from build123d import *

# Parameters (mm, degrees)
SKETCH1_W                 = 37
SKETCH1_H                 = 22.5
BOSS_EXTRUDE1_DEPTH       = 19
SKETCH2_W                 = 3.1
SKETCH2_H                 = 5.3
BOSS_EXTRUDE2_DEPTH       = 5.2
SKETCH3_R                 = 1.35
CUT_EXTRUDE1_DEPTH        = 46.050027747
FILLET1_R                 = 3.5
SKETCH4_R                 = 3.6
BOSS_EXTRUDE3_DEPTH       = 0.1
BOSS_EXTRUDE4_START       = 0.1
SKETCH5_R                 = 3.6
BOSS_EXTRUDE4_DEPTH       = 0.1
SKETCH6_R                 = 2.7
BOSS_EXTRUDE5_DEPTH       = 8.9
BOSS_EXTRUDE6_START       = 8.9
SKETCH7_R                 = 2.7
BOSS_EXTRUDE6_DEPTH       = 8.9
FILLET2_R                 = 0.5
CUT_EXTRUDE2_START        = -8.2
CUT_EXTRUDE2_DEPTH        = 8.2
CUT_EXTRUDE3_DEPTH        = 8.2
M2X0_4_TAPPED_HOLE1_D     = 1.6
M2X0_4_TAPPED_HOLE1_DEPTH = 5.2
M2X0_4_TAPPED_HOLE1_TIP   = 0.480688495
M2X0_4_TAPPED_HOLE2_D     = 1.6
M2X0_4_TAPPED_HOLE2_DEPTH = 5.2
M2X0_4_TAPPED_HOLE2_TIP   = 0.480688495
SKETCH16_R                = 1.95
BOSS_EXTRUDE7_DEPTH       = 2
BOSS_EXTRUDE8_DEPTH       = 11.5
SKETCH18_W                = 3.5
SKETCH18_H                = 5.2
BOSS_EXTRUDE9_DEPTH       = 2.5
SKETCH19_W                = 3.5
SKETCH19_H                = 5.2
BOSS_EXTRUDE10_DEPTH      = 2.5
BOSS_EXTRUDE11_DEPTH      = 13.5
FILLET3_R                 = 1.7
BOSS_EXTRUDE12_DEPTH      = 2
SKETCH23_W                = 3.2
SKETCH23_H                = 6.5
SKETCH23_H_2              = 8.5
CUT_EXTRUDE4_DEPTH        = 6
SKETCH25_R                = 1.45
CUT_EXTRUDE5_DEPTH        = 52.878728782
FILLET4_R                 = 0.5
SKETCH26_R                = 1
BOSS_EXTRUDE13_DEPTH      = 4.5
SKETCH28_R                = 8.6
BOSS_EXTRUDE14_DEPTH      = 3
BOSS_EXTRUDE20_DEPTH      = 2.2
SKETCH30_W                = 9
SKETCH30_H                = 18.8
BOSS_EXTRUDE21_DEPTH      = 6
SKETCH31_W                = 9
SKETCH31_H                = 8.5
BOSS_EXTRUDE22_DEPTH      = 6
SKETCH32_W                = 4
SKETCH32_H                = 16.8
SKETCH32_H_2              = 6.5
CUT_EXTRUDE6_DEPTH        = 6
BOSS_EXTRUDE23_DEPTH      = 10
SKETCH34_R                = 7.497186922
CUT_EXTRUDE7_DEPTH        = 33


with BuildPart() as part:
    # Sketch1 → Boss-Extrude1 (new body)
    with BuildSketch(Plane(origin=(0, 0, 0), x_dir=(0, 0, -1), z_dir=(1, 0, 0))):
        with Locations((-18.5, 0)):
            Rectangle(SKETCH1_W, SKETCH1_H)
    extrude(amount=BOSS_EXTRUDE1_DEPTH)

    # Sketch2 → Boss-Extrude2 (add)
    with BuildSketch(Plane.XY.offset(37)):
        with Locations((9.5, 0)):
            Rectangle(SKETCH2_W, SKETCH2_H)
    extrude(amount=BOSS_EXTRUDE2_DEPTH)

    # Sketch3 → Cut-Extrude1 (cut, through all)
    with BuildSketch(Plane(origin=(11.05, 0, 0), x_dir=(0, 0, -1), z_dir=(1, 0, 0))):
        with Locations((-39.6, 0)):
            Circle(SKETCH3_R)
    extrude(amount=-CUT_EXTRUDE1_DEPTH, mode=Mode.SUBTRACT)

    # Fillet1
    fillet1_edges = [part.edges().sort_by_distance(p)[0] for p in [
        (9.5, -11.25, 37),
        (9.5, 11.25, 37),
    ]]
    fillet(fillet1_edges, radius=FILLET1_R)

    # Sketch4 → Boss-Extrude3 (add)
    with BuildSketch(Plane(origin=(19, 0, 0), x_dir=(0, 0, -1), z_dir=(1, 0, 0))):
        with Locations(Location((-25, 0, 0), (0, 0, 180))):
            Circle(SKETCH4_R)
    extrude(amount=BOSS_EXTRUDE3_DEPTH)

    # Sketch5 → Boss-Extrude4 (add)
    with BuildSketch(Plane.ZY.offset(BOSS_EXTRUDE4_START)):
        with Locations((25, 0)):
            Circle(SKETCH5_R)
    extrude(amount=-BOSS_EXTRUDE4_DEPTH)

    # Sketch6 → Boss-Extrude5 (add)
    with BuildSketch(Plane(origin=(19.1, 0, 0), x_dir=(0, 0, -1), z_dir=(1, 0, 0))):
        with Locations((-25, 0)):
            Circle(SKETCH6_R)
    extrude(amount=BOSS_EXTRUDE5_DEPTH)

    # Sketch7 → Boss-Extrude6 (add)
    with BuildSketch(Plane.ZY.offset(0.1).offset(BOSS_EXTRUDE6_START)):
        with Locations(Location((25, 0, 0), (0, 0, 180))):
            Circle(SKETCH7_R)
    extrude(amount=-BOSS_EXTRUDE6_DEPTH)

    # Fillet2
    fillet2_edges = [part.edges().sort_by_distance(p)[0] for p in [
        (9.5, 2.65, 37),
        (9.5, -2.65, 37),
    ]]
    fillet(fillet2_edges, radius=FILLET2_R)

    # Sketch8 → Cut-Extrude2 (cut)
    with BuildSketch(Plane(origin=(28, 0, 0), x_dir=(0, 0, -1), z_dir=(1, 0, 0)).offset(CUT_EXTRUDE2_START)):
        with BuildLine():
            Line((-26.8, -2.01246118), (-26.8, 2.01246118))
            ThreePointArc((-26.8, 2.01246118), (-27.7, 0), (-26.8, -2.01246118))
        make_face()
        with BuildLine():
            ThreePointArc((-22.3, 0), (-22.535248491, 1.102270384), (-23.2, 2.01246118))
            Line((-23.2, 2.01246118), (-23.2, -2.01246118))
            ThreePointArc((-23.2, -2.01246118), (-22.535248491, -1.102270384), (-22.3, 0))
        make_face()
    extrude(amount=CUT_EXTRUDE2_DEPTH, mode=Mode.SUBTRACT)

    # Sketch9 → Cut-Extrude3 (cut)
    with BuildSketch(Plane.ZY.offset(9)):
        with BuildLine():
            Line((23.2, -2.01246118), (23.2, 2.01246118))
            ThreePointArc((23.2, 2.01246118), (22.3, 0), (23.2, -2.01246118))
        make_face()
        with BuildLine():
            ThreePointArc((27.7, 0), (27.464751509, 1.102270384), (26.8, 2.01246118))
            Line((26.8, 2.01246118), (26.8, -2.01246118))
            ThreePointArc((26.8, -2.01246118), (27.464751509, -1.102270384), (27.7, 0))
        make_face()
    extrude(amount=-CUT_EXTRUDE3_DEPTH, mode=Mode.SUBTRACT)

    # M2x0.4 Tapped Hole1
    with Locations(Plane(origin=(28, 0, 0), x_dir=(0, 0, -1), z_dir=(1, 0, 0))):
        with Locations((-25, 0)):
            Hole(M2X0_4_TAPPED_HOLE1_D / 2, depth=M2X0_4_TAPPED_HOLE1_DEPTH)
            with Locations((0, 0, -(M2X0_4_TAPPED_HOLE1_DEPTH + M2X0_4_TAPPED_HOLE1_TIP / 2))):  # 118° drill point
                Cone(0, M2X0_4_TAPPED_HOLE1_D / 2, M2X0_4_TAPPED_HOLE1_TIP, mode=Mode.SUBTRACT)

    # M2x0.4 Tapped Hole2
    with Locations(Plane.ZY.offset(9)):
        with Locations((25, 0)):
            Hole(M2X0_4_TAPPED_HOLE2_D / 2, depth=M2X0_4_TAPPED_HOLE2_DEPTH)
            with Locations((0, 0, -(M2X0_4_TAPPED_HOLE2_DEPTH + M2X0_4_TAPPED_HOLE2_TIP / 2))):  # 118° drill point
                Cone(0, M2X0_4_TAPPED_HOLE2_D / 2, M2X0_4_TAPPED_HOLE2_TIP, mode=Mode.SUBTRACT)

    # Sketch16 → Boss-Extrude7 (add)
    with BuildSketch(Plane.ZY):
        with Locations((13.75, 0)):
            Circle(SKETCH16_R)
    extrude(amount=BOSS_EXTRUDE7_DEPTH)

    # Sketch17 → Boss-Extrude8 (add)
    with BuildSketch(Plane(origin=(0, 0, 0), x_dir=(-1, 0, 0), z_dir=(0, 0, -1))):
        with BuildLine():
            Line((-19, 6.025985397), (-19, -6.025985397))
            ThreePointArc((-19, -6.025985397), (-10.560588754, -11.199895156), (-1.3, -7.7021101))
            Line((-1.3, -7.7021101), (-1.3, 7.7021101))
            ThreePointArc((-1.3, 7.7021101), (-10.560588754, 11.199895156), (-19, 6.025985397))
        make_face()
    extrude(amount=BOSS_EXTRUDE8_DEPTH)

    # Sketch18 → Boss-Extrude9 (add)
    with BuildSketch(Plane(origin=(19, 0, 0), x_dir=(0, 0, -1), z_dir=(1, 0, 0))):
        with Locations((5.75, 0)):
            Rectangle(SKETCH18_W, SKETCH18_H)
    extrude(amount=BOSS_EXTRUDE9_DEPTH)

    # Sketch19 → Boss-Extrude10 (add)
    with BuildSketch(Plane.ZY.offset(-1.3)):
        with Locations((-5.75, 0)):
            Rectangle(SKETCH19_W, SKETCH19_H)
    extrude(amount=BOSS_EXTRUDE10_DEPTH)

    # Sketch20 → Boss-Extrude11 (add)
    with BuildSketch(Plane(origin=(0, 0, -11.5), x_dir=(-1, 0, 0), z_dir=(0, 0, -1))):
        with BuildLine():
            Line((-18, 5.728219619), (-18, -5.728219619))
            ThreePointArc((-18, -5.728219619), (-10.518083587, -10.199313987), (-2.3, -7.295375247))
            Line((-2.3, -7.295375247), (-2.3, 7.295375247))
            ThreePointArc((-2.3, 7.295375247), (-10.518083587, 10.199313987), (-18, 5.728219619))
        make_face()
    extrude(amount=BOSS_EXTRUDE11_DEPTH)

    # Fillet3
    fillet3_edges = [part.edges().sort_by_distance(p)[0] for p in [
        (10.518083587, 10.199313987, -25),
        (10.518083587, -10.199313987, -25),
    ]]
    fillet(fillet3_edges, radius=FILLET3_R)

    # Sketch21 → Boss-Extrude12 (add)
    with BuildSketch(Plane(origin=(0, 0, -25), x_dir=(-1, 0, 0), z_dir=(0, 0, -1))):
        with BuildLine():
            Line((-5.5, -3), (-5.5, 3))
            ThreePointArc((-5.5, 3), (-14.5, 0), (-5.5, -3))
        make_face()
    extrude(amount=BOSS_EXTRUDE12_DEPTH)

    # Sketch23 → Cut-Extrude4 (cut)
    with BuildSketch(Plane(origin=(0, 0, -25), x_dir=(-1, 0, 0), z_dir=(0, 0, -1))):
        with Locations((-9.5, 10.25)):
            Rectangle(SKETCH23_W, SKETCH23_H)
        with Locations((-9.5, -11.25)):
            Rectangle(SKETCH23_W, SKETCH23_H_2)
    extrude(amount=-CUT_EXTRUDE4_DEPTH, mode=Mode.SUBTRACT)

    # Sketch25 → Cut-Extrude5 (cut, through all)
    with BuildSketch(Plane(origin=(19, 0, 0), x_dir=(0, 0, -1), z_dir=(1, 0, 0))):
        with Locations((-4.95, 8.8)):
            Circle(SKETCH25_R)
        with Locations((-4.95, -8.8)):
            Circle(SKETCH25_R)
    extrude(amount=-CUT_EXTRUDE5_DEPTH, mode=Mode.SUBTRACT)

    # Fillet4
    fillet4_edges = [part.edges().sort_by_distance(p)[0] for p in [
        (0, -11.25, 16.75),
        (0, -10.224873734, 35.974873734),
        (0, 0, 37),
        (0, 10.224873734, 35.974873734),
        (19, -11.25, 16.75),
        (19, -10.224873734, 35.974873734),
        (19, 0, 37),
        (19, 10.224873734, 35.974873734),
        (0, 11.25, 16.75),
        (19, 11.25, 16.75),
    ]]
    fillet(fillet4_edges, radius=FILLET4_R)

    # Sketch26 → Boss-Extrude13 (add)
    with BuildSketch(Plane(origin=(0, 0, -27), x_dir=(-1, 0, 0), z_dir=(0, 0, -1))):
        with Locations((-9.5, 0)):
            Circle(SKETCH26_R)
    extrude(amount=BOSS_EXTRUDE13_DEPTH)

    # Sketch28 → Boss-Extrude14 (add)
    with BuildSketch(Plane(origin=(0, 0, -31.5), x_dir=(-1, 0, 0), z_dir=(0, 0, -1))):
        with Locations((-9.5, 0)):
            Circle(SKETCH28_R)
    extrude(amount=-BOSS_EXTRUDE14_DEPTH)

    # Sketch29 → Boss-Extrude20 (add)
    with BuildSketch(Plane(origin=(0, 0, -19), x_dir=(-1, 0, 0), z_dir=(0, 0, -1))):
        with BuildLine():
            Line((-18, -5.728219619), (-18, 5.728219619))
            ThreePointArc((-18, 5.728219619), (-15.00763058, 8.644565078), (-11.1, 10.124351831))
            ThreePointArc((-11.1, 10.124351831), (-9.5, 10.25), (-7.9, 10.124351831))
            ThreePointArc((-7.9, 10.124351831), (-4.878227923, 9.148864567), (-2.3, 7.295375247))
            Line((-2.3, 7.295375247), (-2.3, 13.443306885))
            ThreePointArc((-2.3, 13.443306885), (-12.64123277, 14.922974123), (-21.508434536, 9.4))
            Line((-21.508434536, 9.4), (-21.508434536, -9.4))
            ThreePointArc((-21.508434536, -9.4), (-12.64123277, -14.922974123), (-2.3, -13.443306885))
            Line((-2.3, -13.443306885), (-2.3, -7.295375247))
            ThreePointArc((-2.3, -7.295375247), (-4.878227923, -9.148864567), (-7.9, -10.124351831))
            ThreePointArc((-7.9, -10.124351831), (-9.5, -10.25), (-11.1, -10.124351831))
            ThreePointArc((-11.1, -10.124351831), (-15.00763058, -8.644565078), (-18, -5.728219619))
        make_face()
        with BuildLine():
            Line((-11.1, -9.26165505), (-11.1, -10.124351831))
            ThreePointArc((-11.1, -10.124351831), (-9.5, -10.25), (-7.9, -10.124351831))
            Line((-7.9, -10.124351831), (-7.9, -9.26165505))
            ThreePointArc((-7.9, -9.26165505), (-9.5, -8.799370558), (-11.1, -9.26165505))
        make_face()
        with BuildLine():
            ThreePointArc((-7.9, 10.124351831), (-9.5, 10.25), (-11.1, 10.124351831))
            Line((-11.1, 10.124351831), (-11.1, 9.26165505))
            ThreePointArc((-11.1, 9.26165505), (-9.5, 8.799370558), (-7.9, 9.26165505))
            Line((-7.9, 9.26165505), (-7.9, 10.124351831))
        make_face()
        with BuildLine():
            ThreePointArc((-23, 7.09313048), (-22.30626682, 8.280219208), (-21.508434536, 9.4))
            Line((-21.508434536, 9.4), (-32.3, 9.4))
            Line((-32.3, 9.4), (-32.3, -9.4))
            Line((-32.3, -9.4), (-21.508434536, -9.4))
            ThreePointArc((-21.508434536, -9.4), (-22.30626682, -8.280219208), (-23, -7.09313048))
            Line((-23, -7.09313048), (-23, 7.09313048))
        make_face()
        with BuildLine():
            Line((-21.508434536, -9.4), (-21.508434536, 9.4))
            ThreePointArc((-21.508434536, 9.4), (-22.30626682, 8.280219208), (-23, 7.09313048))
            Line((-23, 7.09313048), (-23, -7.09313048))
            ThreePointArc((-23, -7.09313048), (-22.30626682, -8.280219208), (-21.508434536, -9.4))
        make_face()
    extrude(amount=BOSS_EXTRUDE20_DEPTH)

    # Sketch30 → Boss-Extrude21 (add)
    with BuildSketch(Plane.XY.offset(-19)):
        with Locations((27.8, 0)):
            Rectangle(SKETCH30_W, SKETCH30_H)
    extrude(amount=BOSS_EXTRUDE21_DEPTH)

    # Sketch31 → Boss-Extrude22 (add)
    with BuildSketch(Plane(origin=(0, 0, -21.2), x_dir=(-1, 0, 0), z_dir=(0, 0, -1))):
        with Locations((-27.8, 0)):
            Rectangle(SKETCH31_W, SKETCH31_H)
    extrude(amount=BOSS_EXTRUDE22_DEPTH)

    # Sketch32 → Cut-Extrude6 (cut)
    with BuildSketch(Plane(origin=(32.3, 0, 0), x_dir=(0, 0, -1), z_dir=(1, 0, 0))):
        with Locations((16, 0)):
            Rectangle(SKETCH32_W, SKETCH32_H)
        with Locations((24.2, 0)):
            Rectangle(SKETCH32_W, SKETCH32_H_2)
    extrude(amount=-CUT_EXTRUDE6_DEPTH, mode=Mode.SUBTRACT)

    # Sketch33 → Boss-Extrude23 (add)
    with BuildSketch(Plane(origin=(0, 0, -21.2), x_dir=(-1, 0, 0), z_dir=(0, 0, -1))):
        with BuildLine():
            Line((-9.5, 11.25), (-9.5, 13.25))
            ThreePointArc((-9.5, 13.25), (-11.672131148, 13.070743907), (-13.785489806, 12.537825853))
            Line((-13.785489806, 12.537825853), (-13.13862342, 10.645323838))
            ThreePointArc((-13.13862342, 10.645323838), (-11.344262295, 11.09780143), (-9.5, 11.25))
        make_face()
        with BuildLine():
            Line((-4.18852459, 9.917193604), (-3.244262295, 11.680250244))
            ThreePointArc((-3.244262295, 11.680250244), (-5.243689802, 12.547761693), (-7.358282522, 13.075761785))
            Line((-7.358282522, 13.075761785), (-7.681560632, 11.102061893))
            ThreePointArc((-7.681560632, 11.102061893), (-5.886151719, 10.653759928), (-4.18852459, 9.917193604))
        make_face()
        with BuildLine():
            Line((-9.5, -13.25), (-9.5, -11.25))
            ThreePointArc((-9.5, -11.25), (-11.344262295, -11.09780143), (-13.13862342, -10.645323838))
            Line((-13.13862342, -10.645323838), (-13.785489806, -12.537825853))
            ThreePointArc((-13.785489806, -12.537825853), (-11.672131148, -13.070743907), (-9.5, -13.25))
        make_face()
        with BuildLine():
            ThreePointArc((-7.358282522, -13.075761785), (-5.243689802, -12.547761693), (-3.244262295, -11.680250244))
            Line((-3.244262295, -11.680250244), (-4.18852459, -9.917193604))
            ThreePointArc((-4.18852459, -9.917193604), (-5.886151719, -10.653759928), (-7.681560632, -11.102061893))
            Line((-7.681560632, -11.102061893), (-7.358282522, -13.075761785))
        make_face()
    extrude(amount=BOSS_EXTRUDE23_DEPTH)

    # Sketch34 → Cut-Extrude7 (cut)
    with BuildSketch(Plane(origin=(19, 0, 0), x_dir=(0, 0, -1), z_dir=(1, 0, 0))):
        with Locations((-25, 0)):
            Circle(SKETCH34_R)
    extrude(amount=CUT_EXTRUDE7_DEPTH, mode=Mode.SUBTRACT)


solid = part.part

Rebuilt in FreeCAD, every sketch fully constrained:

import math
import FreeCAD as App
import Part
import Sketcher

V = App.Vector


def edges_at(feature, points):
    """Names of the edges that pass closest to the given points."""
    edges = feature.Shape.Edges
    near = lambda p: min(range(len(edges)), key=lambda i: edges[i].distToShape(Part.Vertex(*p))[0])
    return sorted({f"Edge{near(p) + 1}" for p in points})


def add_polygon(sketch, points):
    """Adds a closed chain of lines whose ends are joined by coincident constraints."""
    first, n = sketch.GeometryCount, len(points)
    for a, b in zip(points, points[1:] + points[:1]):
        sketch.addGeometry(Part.LineSegment(App.Vector(*a, 0), App.Vector(*b, 0)), False)
    for i in range(n):
        sketch.addConstraint(Sketcher.Constraint("Coincident", first + i, 2, first + (i + 1) % n, 1))

doc = App.newDocument("Part")
body = doc.addObject("PartDesign::Body", "Body")

sketch1 = body.newObject("Sketcher::SketchObject", "Sketch")
sketch1.AttachmentSupport = (doc.getObject("YZ_Plane"), [""])
sketch1.MapMode = "FlatFace"
add_polygon(sketch1, [(11.25, 37), (-11.25, 37), (-11.25, 0), (11.25, 0)])
sketch1.addConstraint(Sketcher.Constraint("Horizontal", 0))
sketch1.addConstraint(Sketcher.Constraint("Vertical", 1))
sketch1.addConstraint(Sketcher.Constraint("Horizontal", 2))
sketch1.addConstraint(Sketcher.Constraint("Vertical", 3))
sketch1.addConstraint(Sketcher.Constraint("Symmetric", 1, 2, 2, 2, -1, 1))
sketch1.addConstraint(Sketcher.Constraint("DistanceY", 1, 2, 1, 1, 37.0))
sketch1.addConstraint(Sketcher.Constraint("DistanceX", 0, 2, 0, 1, 22.5))
pad1 = body.newObject("PartDesign::Pad", "Pad")
pad1.Profile = sketch1
pad1.Length = 19

sketch2 = body.newObject("Sketcher::SketchObject", "Sketch001")
sketch2.AttachmentSupport = (doc.getObject("XY_Plane"), [""])
sketch2.MapMode = "FlatFace"
sketch2.AttachmentOffset = App.Placement(V(0, 0, 37), App.Rotation())
add_polygon(sketch2, [(7.95, 2.65), (7.95, -2.65), (11.05, -2.65), (11.05, 2.65)])
sketch2.addConstraint(Sketcher.Constraint("Vertical", 0))
sketch2.addConstraint(Sketcher.Constraint("Horizontal", 1))
sketch2.addConstraint(Sketcher.Constraint("Vertical", 2))
sketch2.addConstraint(Sketcher.Constraint("Horizontal", 3))
sketch2.addConstraint(Sketcher.Constraint("DistanceX", 1, 1, 1, 2, 3.1))
sketch2.addConstraint(Sketcher.Constraint("DistanceY", 0, 2, 0, 1, 5.3))
sketch2.addConstraint(Sketcher.Constraint("DistanceX", -1, 1, 0, 2, 7.95))
sketch2.addConstraint(Sketcher.Constraint("DistanceY", 0, 2, -1, 1, 2.65))
pad2 = body.newObject("PartDesign::Pad", "Pad001")
pad2.Profile = sketch2
pad2.Length = 5.2

sketch3 = body.newObject("Sketcher::SketchObject", "Sketch002")
sketch3.AttachmentSupport = (doc.getObject("YZ_Plane"), [""])
sketch3.MapMode = "FlatFace"
sketch3.AttachmentOffset = App.Placement(V(0, 0, 11.05), App.Rotation())
sketch3.addGeometry(Part.Circle(V(0, 39.6, 0), V(0, 0, 1), 1.35), False)
sketch3.addConstraint(Sketcher.Constraint("PointOnObject", 0, 3, -2))
sketch3.addConstraint(Sketcher.Constraint("Diameter", 0, 2.7))
sketch3.addConstraint(Sketcher.Constraint("DistanceY", -1, 1, 0, 3, 39.6))
pocket1 = body.newObject("PartDesign::Pocket", "Pocket")
pocket1.Profile = sketch3
pocket1.Type = "ThroughAll"
doc.recompute()

fillet = body.newObject("PartDesign::Fillet", "Fillet")
fillet.Base = (pocket1, edges_at(pocket1, [(9.5, -11.25, 37), (9.5, 11.25, 37)]))
fillet.Radius = 3.5

sketch4 = body.newObject("Sketcher::SketchObject", "Sketch003")
sketch4.AttachmentSupport = (doc.getObject("YZ_Plane"), [""])
sketch4.MapMode = "FlatFace"
sketch4.AttachmentOffset = App.Placement(V(0, 0, 19), App.Rotation())
sketch4.addGeometry(Part.Circle(V(0, 25, 0), V(0, 0, 1), 3.6), False)
sketch4.addConstraint(Sketcher.Constraint("PointOnObject", 0, 3, -2))
sketch4.addConstraint(Sketcher.Constraint("Diameter", 0, 7.2))
sketch4.addConstraint(Sketcher.Constraint("DistanceY", -1, 1, 0, 3, 25.0))
pad3 = body.newObject("PartDesign::Pad", "Pad002")
pad3.Profile = sketch4
pad3.Length = 0.1

sketch5 = body.newObject("Sketcher::SketchObject", "Sketch004")
sketch5.AttachmentSupport = (doc.getObject("YZ_Plane"), [""])
sketch5.MapMode = "FlatFace"
sketch5.AttachmentOffset = App.Placement(V(0, 0, -0.1), App.Rotation())
sketch5.addGeometry(Part.Circle(V(0, 25, 0), V(0, 0, 1), 3.6), False)
sketch5.addConstraint(Sketcher.Constraint("PointOnObject", 0, 3, -2))
sketch5.addConstraint(Sketcher.Constraint("Diameter", 0, 7.2))
sketch5.addConstraint(Sketcher.Constraint("DistanceY", -1, 1, 0, 3, 25.0))
pad4 = body.newObject("PartDesign::Pad", "Pad003")
pad4.Profile = sketch5
pad4.Length = 0.1

sketch6 = body.newObject("Sketcher::SketchObject", "Sketch005")
sketch6.AttachmentSupport = (doc.getObject("YZ_Plane"), [""])
sketch6.MapMode = "FlatFace"
sketch6.AttachmentOffset = App.Placement(V(0, 0, 19.1), App.Rotation())
sketch6.addGeometry(Part.Circle(V(0, 25, 0), V(0, 0, 1), 2.7), False)
sketch6.addConstraint(Sketcher.Constraint("PointOnObject", 0, 3, -2))
sketch6.addConstraint(Sketcher.Constraint("Diameter", 0, 5.4))
sketch6.addConstraint(Sketcher.Constraint("DistanceY", -1, 1, 0, 3, 25.0))
pad5 = body.newObject("PartDesign::Pad", "Pad004")
pad5.Profile = sketch6
pad5.Length = 8.9

sketch7 = body.newObject("Sketcher::SketchObject", "Sketch006")
sketch7.AttachmentSupport = (doc.getObject("YZ_Plane"), [""])
sketch7.MapMode = "FlatFace"
sketch7.AttachmentOffset = App.Placement(V(0, 0, -9), App.Rotation())
sketch7.addGeometry(Part.Circle(V(0, 25, 0), V(0, 0, 1), 2.7), False)
sketch7.addConstraint(Sketcher.Constraint("PointOnObject", 0, 3, -2))
sketch7.addConstraint(Sketcher.Constraint("Diameter", 0, 5.4))
sketch7.addConstraint(Sketcher.Constraint("DistanceY", -1, 1, 0, 3, 25.0))
pad6 = body.newObject("PartDesign::Pad", "Pad005")
pad6.Profile = sketch7
pad6.Length = 8.9
doc.recompute()

fillet2 = body.newObject("PartDesign::Fillet", "Fillet001")
fillet2.Base = (pad6, edges_at(pad6, [(9.5, 2.65, 37), (9.5, -2.65, 37)]))
fillet2.Radius = 0.5

sketch8 = body.newObject("Sketcher::SketchObject", "Sketch007")
sketch8.AttachmentSupport = (doc.getObject("YZ_Plane"), [""])
sketch8.MapMode = "FlatFace"
sketch8.AttachmentOffset = App.Placement(V(0, 0, 19.8), App.Rotation())
sketch8.addGeometry(Part.LineSegment(V(-2.012461, 26.8, 0), V(2.012461, 26.8, 0)), False)
sketch8.addGeometry(Part.ArcOfCircle(Part.Circle(V(0, 25, 0), V(0, 0, 1), 2.7), math.radians(41.810315), math.radians(138.189685)), False)
sketch8.addGeometry(Part.ArcOfCircle(Part.Circle(V(0, 25, 0), V(0, 0, 1), 2.7), math.radians(-90), math.radians(-41.810315)), False)
sketch8.addGeometry(Part.LineSegment(V(2.012461, 23.2, 0), V(-2.012461, 23.2, 0)), False)
sketch8.addGeometry(Part.ArcOfCircle(Part.Circle(V(0, 25, 0), V(0, 0, 1), 2.7), math.radians(-138.189685), math.radians(-90)), False)
sketch8.addConstraint(Sketcher.Constraint("Coincident", 0, 1, 1, 2))
sketch8.addConstraint(Sketcher.Constraint("Coincident", 1, 1, 0, 2))
sketch8.addConstraint(Sketcher.Constraint("Coincident", 2, 2, 3, 1))
sketch8.addConstraint(Sketcher.Constraint("Coincident", 3, 2, 4, 1))
sketch8.addConstraint(Sketcher.Constraint("Tangent", 4, 2, 2, 1))
sketch8.addConstraint(Sketcher.Constraint("Horizontal", 0))
sketch8.addConstraint(Sketcher.Constraint("Horizontal", 3))
sketch8.addConstraint(Sketcher.Constraint("Coincident", 2, 3, 1, 3))
sketch8.addConstraint(Sketcher.Constraint("Equal", 1, 2))
sketch8.addConstraint(Sketcher.Constraint("Equal", 2, 4))
sketch8.addConstraint(Sketcher.Constraint("PointOnObject", 1, 3, -2))
sketch8.addConstraint(Sketcher.Constraint("PointOnObject", 4, 2, -2))
sketch8.addConstraint(Sketcher.Constraint("Vertical", 1, 1, 2, 2))
sketch8.addConstraint(Sketcher.Constraint("Radius", 1, 2.7))
sketch8.addConstraint(Sketcher.Constraint("DistanceY", -1, 1, 1, 3, 25.0))
sketch8.addConstraint(Sketcher.Constraint("DistanceY", -1, 1, 0, 1, 26.8))
pocket2 = body.newObject("PartDesign::Pocket", "Pocket001")
pocket2.Profile = sketch8
pocket2.Length = 8.2
pocket2.Reversed = True

sketch9 = body.newObject("Sketcher::SketchObject", "Sketch008")
sketch9.AttachmentSupport = (doc.getObject("YZ_Plane"), [""])
sketch9.MapMode = "FlatFace"
sketch9.AttachmentOffset = App.Placement(V(0, 0, -9), App.Rotation())
sketch9.addGeometry(Part.LineSegment(V(-2.012461, 23.2, 0), V(2.012461, 23.2, 0)), False)
sketch9.addGeometry(Part.ArcOfCircle(Part.Circle(V(0, 25, 0), V(0, 0, 1), 2.7), math.radians(-138.189685), math.radians(-41.810315)), False)
sketch9.addGeometry(Part.ArcOfCircle(Part.Circle(V(0, 25, 0), V(0, 0, 1), 2.7), math.radians(41.810315), math.radians(90)), False)
sketch9.addGeometry(Part.LineSegment(V(2.012461, 26.8, 0), V(-2.012461, 26.8, 0)), False)
sketch9.addGeometry(Part.ArcOfCircle(Part.Circle(V(0, 25, 0), V(0, 0, 1), 2.7), math.radians(90), math.radians(138.189685)), False)
sketch9.addConstraint(Sketcher.Constraint("Coincident", 0, 1, 1, 1))
sketch9.addConstraint(Sketcher.Constraint("Coincident", 1, 2, 0, 2))
sketch9.addConstraint(Sketcher.Constraint("Coincident", 2, 1, 3, 1))
sketch9.addConstraint(Sketcher.Constraint("Coincident", 3, 2, 4, 2))
sketch9.addConstraint(Sketcher.Constraint("Tangent", 4, 1, 2, 2))
sketch9.addConstraint(Sketcher.Constraint("Horizontal", 0))
sketch9.addConstraint(Sketcher.Constraint("Horizontal", 3))
sketch9.addConstraint(Sketcher.Constraint("Coincident", 2, 3, 1, 3))
sketch9.addConstraint(Sketcher.Constraint("Equal", 1, 2))
sketch9.addConstraint(Sketcher.Constraint("Equal", 2, 4))
sketch9.addConstraint(Sketcher.Constraint("PointOnObject", 1, 3, -2))
sketch9.addConstraint(Sketcher.Constraint("PointOnObject", 4, 1, -2))
sketch9.addConstraint(Sketcher.Constraint("Vertical", 1, 2, 2, 1))
sketch9.addConstraint(Sketcher.Constraint("Radius", 1, 2.7))
sketch9.addConstraint(Sketcher.Constraint("DistanceY", -1, 1, 1, 3, 25.0))
sketch9.addConstraint(Sketcher.Constraint("DistanceY", -1, 1, 0, 1, 23.2))
pocket3 = body.newObject("PartDesign::Pocket", "Pocket002")
pocket3.Profile = sketch9
pocket3.Length = 8.2
pocket3.Reversed = True

sketch10 = body.newObject("Sketcher::SketchObject", "Sketch009")
sketch10.AttachmentSupport = (doc.getObject("YZ_Plane"), [""])
sketch10.MapMode = "FlatFace"
sketch10.AttachmentOffset = App.Placement(V(0, 0, 28), App.Rotation())
sketch10.addGeometry(Part.Circle(V(0, 25, 0), V(0, 0, 1), 0.8), False)
sketch10.addConstraint(Sketcher.Constraint("PointOnObject", 0, 3, -2))
sketch10.addConstraint(Sketcher.Constraint("Diameter", 0, 1.6))
sketch10.addConstraint(Sketcher.Constraint("DistanceY", -1, 1, 0, 3, 25.0))
doc.recompute()
hole = body.newObject("PartDesign::Hole", "Hole")
hole.Profile = sketch10
hole.ThreadType = "None"
hole.Diameter = 1.6
hole.DepthType = "Dimension"
hole.Depth = 5.2
hole.DrillPoint = "Angled"
hole.DrillPointAngle = 118

sketch11 = body.newObject("Sketcher::SketchObject", "Sketch010")
sketch11.AttachmentSupport = (doc.getObject("YZ_Plane"), [""])
sketch11.MapMode = "FlatFace"
sketch11.AttachmentOffset = App.Placement(V(0, 0, -9), App.Rotation())
sketch11.addGeometry(Part.Circle(V(0, 25, 0), V(0, 0, 1), 0.8), False)
sketch11.addConstraint(Sketcher.Constraint("PointOnObject", 0, 3, -2))
sketch11.addConstraint(Sketcher.Constraint("Diameter", 0, 1.6))
sketch11.addConstraint(Sketcher.Constraint("DistanceY", -1, 1, 0, 3, 25.0))
doc.recompute()
hole2 = body.newObject("PartDesign::Hole", "Hole001")
hole2.Profile = sketch11
hole2.ThreadType = "None"
hole2.Diameter = 1.6
hole2.DepthType = "Dimension"
hole2.Depth = 5.2
hole2.DrillPoint = "Angled"
hole2.DrillPointAngle = 118
hole2.Reversed = True

sketch12 = body.newObject("Sketcher::SketchObject", "Sketch011")
sketch12.AttachmentSupport = (doc.getObject("YZ_Plane"), [""])
sketch12.MapMode = "FlatFace"
sketch12.addGeometry(Part.Circle(V(0, 13.75, 0), V(0, 0, 1), 1.95), False)
sketch12.addConstraint(Sketcher.Constraint("PointOnObject", 0, 3, -2))
sketch12.addConstraint(Sketcher.Constraint("Diameter", 0, 3.9))
sketch12.addConstraint(Sketcher.Constraint("DistanceY", -1, 1, 0, 3, 13.75))
pad7 = body.newObject("PartDesign::Pad", "Pad006")
pad7.Profile = sketch12
pad7.Length = 2
pad7.Reversed = True

sketch13 = body.newObject("Sketcher::SketchObject", "Sketch012")
sketch13.AttachmentSupport = (doc.getObject("XY_Plane"), [""])
sketch13.MapMode = "FlatFace"
sketch13.addGeometry(Part.LineSegment(V(19, 6.025985, 0), V(19, -6.025985, 0)), False)
sketch13.addGeometry(Part.ArcOfCircle(Part.Circle(V(9.5, 0, 0), V(0, 0, 1), 11.25), math.radians(-136.793326), math.radians(-32.387539)), False)
sketch13.addGeometry(Part.LineSegment(V(1.3, -7.70211, 0), V(1.3, 7.70211, 0)), False)
sketch13.addGeometry(Part.ArcOfCircle(Part.Circle(V(9.5, 0, 0), V(0, 0, 1), 11.25), math.radians(32.387539), math.radians(136.793326)), False)
sketch13.addConstraint(Sketcher.Constraint("Coincident", 0, 2, 1, 2))
sketch13.addConstraint(Sketcher.Constraint("Coincident", 1, 1, 2, 1))
sketch13.addConstraint(Sketcher.Constraint("Coincident", 2, 2, 3, 2))
sketch13.addConstraint(Sketcher.Constraint("Coincident", 3, 1, 0, 1))
sketch13.addConstraint(Sketcher.Constraint("Vertical", 0))
sketch13.addConstraint(Sketcher.Constraint("Vertical", 2))
sketch13.addConstraint(Sketcher.Constraint("Coincident", 3, 3, 1, 3))
sketch13.addConstraint(Sketcher.Constraint("Equal", 1, 3))
sketch13.addConstraint(Sketcher.Constraint("PointOnObject", 1, 3, -1))
sketch13.addConstraint(Sketcher.Constraint("Radius", 1, 11.25))
sketch13.addConstraint(Sketcher.Constraint("DistanceX", -1, 1, 0, 2, 19.0))
sketch13.addConstraint(Sketcher.Constraint("DistanceX", -1, 1, 1, 3, 9.5))
sketch13.addConstraint(Sketcher.Constraint("DistanceX", -1, 1, 1, 1, 1.3))
pad8 = body.newObject("PartDesign::Pad", "Pad007")
pad8.Profile = sketch13
pad8.Length = 11.5
pad8.Reversed = True

sketch14 = body.newObject("Sketcher::SketchObject", "Sketch013")
sketch14.AttachmentSupport = (doc.getObject("YZ_Plane"), [""])
sketch14.MapMode = "FlatFace"
sketch14.AttachmentOffset = App.Placement(V(0, 0, 19), App.Rotation())
add_polygon(sketch14, [(2.6, -4), (-2.6, -4), (-2.6, -7.5), (2.6, -7.5)])
sketch14.addConstraint(Sketcher.Constraint("Horizontal", 0))
sketch14.addConstraint(Sketcher.Constraint("Vertical", 1))
sketch14.addConstraint(Sketcher.Constraint("Horizontal", 2))
sketch14.addConstraint(Sketcher.Constraint("Vertical", 3))
sketch14.addConstraint(Sketcher.Constraint("DistanceX", 0, 2, 0, 1, 5.2))
sketch14.addConstraint(Sketcher.Constraint("DistanceY", 1, 2, 1, 1, 3.5))
sketch14.addConstraint(Sketcher.Constraint("DistanceY", 0, 2, -1, 1, 4.0))
sketch14.addConstraint(Sketcher.Constraint("DistanceX", 0, 2, -1, 1, 2.6))
pad9 = body.newObject("PartDesign::Pad", "Pad008")
pad9.Profile = sketch14
pad9.Length = 2.5

sketch15 = body.newObject("Sketcher::SketchObject", "Sketch014")
sketch15.AttachmentSupport = (doc.getObject("YZ_Plane"), [""])
sketch15.MapMode = "FlatFace"
sketch15.AttachmentOffset = App.Placement(V(0, 0, 1.3), App.Rotation())
add_polygon(sketch15, [(2.6, -7.5), (-2.6, -7.5), (-2.6, -4), (2.6, -4)])
sketch15.addConstraint(Sketcher.Constraint("Horizontal", 0))
sketch15.addConstraint(Sketcher.Constraint("Vertical", 1))
sketch15.addConstraint(Sketcher.Constraint("Horizontal", 2))
sketch15.addConstraint(Sketcher.Constraint("Vertical", 3))
sketch15.addConstraint(Sketcher.Constraint("DistanceX", 0, 2, 0, 1, 5.2))
sketch15.addConstraint(Sketcher.Constraint("DistanceY", 1, 1, 1, 2, 3.5))
sketch15.addConstraint(Sketcher.Constraint("DistanceY", 1, 2, -1, 1, 4.0))
sketch15.addConstraint(Sketcher.Constraint("DistanceX", 0, 2, -1, 1, 2.6))
pad10 = body.newObject("PartDesign::Pad", "Pad009")
pad10.Profile = sketch15
pad10.Length = 2.5
pad10.Reversed = True

sketch16 = body.newObject("Sketcher::SketchObject", "Sketch015")
sketch16.AttachmentSupport = (doc.getObject("XY_Plane"), [""])
sketch16.MapMode = "FlatFace"
sketch16.AttachmentOffset = App.Placement(V(0, 0, -11.5), App.Rotation())
sketch16.addGeometry(Part.LineSegment(V(18, 5.72822, 0), V(18, -5.72822, 0)), False)
sketch16.addGeometry(Part.ArcOfCircle(Part.Circle(V(9.5, 0, 0), V(0, 0, 1), 10.25), math.radians(-134.623016), math.radians(-33.976353)), False)
sketch16.addGeometry(Part.LineSegment(V(2.3, -7.295375, 0), V(2.3, 7.295375, 0)), False)
sketch16.addGeometry(Part.ArcOfCircle(Part.Circle(V(9.5, 0, 0), V(0, 0, 1), 10.25), math.radians(33.976353), math.radians(134.623016)), False)
sketch16.addConstraint(Sketcher.Constraint("Coincident", 0, 2, 1, 2))
sketch16.addConstraint(Sketcher.Constraint("Coincident", 1, 1, 2, 1))
sketch16.addConstraint(Sketcher.Constraint("Coincident", 2, 2, 3, 2))
sketch16.addConstraint(Sketcher.Constraint("Coincident", 3, 1, 0, 1))
sketch16.addConstraint(Sketcher.Constraint("Vertical", 0))
sketch16.addConstraint(Sketcher.Constraint("Vertical", 2))
sketch16.addConstraint(Sketcher.Constraint("Coincident", 3, 3, 1, 3))
sketch16.addConstraint(Sketcher.Constraint("Equal", 1, 3))
sketch16.addConstraint(Sketcher.Constraint("PointOnObject", 1, 3, -1))
sketch16.addConstraint(Sketcher.Constraint("Radius", 1, 10.25))
sketch16.addConstraint(Sketcher.Constraint("DistanceX", -1, 1, 0, 2, 18.0))
sketch16.addConstraint(Sketcher.Constraint("DistanceX", -1, 1, 1, 3, 9.5))
sketch16.addConstraint(Sketcher.Constraint("DistanceX", -1, 1, 1, 1, 2.3))
pad11 = body.newObject("PartDesign::Pad", "Pad010")
pad11.Profile = sketch16
pad11.Length = 13.5
pad11.Reversed = True
doc.recompute()

fillet3 = body.newObject("PartDesign::Fillet", "Fillet002")
fillet3.Base = (pad11, edges_at(pad11, [(10.518, 10.199, -25), (10.518, -10.199, -25)]))
fillet3.Radius = 1.7

sketch17 = body.newObject("Sketcher::SketchObject", "Sketch016")
sketch17.AttachmentSupport = (doc.getObject("XY_Plane"), [""])
sketch17.MapMode = "FlatFace"
sketch17.AttachmentOffset = App.Placement(V(0, 0, -25), App.Rotation())
sketch17.addGeometry(Part.LineSegment(V(5.5, -3, 0), V(5.5, 3, 0)), False)
sketch17.addGeometry(Part.ArcOfCircle(Part.Circle(V(9.5, 0, 0), V(0, 0, 1), 5), math.radians(-143.130102), math.radians(143.130102)), False)
sketch17.addConstraint(Sketcher.Constraint("Coincident", 0, 1, 1, 1))
sketch17.addConstraint(Sketcher.Constraint("Coincident", 1, 2, 0, 2))
sketch17.addConstraint(Sketcher.Constraint("Vertical", 0))
sketch17.addConstraint(Sketcher.Constraint("PointOnObject", 1, 3, -1))
sketch17.addConstraint(Sketcher.Constraint("Radius", 1, 5.0))
sketch17.addConstraint(Sketcher.Constraint("DistanceY", 0, 1, 0, 2, 6.0))
sketch17.addConstraint(Sketcher.Constraint("DistanceX", -1, 1, 1, 3, 9.5))
pad12 = body.newObject("PartDesign::Pad", "Pad011")
pad12.Profile = sketch17
pad12.Length = 2
pad12.Reversed = True

sketch18 = body.newObject("Sketcher::SketchObject", "Sketch017")
sketch18.AttachmentSupport = (doc.getObject("XY_Plane"), [""])
sketch18.MapMode = "FlatFace"
sketch18.AttachmentOffset = App.Placement(V(0, 0, -25), App.Rotation())
add_polygon(sketch18, [(11.1, 13.5), (11.1, 7), (7.9, 7), (7.9, 13.5)])
add_polygon(sketch18, [(11.1, -7), (11.1, -15.5), (7.9, -15.5), (7.9, -7)])
sketch18.addConstraint(Sketcher.Constraint("Vertical", 0))
sketch18.addConstraint(Sketcher.Constraint("Horizontal", 1))
sketch18.addConstraint(Sketcher.Constraint("Vertical", 2))
sketch18.addConstraint(Sketcher.Constraint("Horizontal", 3))
sketch18.addConstraint(Sketcher.Constraint("Vertical", 4))
sketch18.addConstraint(Sketcher.Constraint("Horizontal", 5))
sketch18.addConstraint(Sketcher.Constraint("Vertical", 6))
sketch18.addConstraint(Sketcher.Constraint("Horizontal", 7))
sketch18.addConstraint(Sketcher.Constraint("Symmetric", 1, 2, 6, 2, -1))
sketch18.addConstraint(Sketcher.Constraint("Vertical", 3, 2, 4, 2))
sketch18.addConstraint(Sketcher.Constraint("DistanceX", 1, 2, 1, 1, 3.2))
sketch18.addConstraint(Sketcher.Constraint("DistanceY", 0, 2, 0, 1, 6.5))
sketch18.addConstraint(Sketcher.Constraint("DistanceY", 4, 2, 4, 1, 8.5))
sketch18.addConstraint(Sketcher.Constraint("DistanceY", -1, 1, 0, 2, 7.0))
sketch18.addConstraint(Sketcher.Constraint("DistanceX", -1, 1, 0, 2, 11.1))
pocket4 = body.newObject("PartDesign::Pocket", "Pocket003")
pocket4.Profile = sketch18
pocket4.Length = 6
pocket4.Reversed = True

sketch19 = body.newObject("Sketcher::SketchObject", "Sketch018")
sketch19.AttachmentSupport = (doc.getObject("YZ_Plane"), [""])
sketch19.MapMode = "FlatFace"
sketch19.AttachmentOffset = App.Placement(V(0, 0, 19), App.Rotation())
sketch19.addGeometry(Part.Circle(V(8.8, 4.95, 0), V(0, 0, 1), 1.45), False)
sketch19.addGeometry(Part.Circle(V(-8.8, 4.95, 0), V(0, 0, 1), 1.45), False)
sketch19.addConstraint(Sketcher.Constraint("Equal", 0, 1))
sketch19.addConstraint(Sketcher.Constraint("Symmetric", 0, 3, 1, 3, -2))
sketch19.addConstraint(Sketcher.Constraint("Diameter", 0, 2.9))
sketch19.addConstraint(Sketcher.Constraint("DistanceX", -1, 1, 0, 3, 8.8))
sketch19.addConstraint(Sketcher.Constraint("DistanceY", -1, 1, 0, 3, 4.95))
pocket5 = body.newObject("PartDesign::Pocket", "Pocket004")
pocket5.Profile = sketch19
pocket5.Type = "ThroughAll"
doc.recompute()

fillet4 = body.newObject("PartDesign::Fillet", "Fillet003")
fillet4.Base = (pocket5, edges_at(pocket5, [
    (0, -11.25, 16.75),
    (0, -10.225, 35.975),
    (0, 0, 37),
    (0, 10.225, 35.975),
    (19, -11.25, 16.75),
    (19, -10.225, 35.975),
    (19, 0, 37),
    (19, 10.225, 35.975),
    (0, 11.25, 16.75),
    (19, 11.25, 16.75),
]))
fillet4.Radius = 0.5

sketch20 = body.newObject("Sketcher::SketchObject", "Sketch019")
sketch20.AttachmentSupport = (doc.getObject("XY_Plane"), [""])
sketch20.MapMode = "FlatFace"
sketch20.AttachmentOffset = App.Placement(V(0, 0, -27), App.Rotation())
sketch20.addGeometry(Part.Circle(V(9.5, 0, 0), V(0, 0, 1), 1), False)
sketch20.addConstraint(Sketcher.Constraint("PointOnObject", 0, 3, -1))
sketch20.addConstraint(Sketcher.Constraint("Diameter", 0, 2.0))
sketch20.addConstraint(Sketcher.Constraint("DistanceX", -1, 1, 0, 3, 9.5))
pad13 = body.newObject("PartDesign::Pad", "Pad012")
pad13.Profile = sketch20
pad13.Length = 4.5
pad13.Reversed = True

sketch21 = body.newObject("Sketcher::SketchObject", "Sketch020")
sketch21.AttachmentSupport = (doc.getObject("XY_Plane"), [""])
sketch21.MapMode = "FlatFace"
sketch21.AttachmentOffset = App.Placement(V(0, 0, -31.5), App.Rotation())
sketch21.addGeometry(Part.Circle(V(9.5, 0, 0), V(0, 0, 1), 8.6), False)
sketch21.addConstraint(Sketcher.Constraint("PointOnObject", 0, 3, -1))
sketch21.addConstraint(Sketcher.Constraint("Diameter", 0, 17.2))
sketch21.addConstraint(Sketcher.Constraint("DistanceX", -1, 1, 0, 3, 9.5))
pad14 = body.newObject("PartDesign::Pad", "Pad013")
pad14.Profile = sketch21
pad14.Length = 3

sketch22 = body.newObject("Sketcher::SketchObject", "Sketch021")
sketch22.AttachmentSupport = (doc.getObject("XY_Plane"), [""])
sketch22.MapMode = "FlatFace"
sketch22.AttachmentOffset = App.Placement(V(0, 0, -19), App.Rotation())
sketch22.addGeometry(Part.LineSegment(V(18, -5.72822, 0), V(18, 5.72822, 0)), False)
sketch22.addGeometry(Part.ArcOfCircle(Part.Circle(V(9.5, 0, 0), V(0, 0, 1), 10.25), math.radians(33.976353), math.radians(81.019543)), False)
sketch22.addGeometry(Part.LineSegment(V(11.1, 10.124352, 0), V(11.1, 9.261655, 0)), False)
sketch22.addGeometry(Part.ArcOfCircle(Part.Circle(V(9.5, 11.799371, 0), V(0, 0, 1), 3), math.radians(-122.230953), math.radians(-57.769047)), False)
sketch22.addGeometry(Part.LineSegment(V(7.9, 9.261655, 0), V(7.9, 10.124352, 0)), False)
sketch22.addGeometry(Part.ArcOfCircle(Part.Circle(V(9.5, 0, 0), V(0, 0, 1), 10.25), math.radians(98.980457), math.radians(134.623016)), False)
sketch22.addGeometry(Part.LineSegment(V(2.3, 7.295375, 0), V(2.3, 13.443307, 0)), False)
sketch22.addGeometry(Part.ArcOfCircle(Part.Circle(V(9.5, 0, 0), V(0, 0, 1), 15.25), math.radians(38.05324), math.radians(118.172723)), False)
sketch22.addGeometry(Part.LineSegment(V(21.508435, 9.4, 0), V(32.3, 9.4, 0)), False)
sketch22.addGeometry(Part.LineSegment(V(32.3, 9.4, 0), V(32.3, -9.4, 0)), False)
sketch22.addGeometry(Part.LineSegment(V(32.3, -9.4, 0), V(21.508435, -9.4, 0)), False)
sketch22.addGeometry(Part.ArcOfCircle(Part.Circle(V(9.5, 0, 0), V(0, 0, 1), 15.25), math.radians(-118.172723), math.radians(-38.05324)), False)
sketch22.addGeometry(Part.LineSegment(V(2.3, -13.443307, 0), V(2.3, -7.295375, 0)), False)
sketch22.addGeometry(Part.ArcOfCircle(Part.Circle(V(9.5, 0, 0), V(0, 0, 1), 10.25), math.radians(-134.623016), math.radians(-98.980457)), False)
sketch22.addGeometry(Part.LineSegment(V(7.9, -10.124352, 0), V(7.9, -9.261655, 0)), False)
sketch22.addGeometry(Part.ArcOfCircle(Part.Circle(V(9.5, -11.799371, 0), V(0, 0, 1), 3), math.radians(57.769047), math.radians(122.230953)), False)
sketch22.addGeometry(Part.LineSegment(V(11.1, -9.261655, 0), V(11.1, -10.124352, 0)), False)
sketch22.addGeometry(Part.ArcOfCircle(Part.Circle(V(9.5, 0, 0), V(0, 0, 1), 10.25), math.radians(-81.019543), math.radians(-33.976353)), False)
sketch22.addConstraint(Sketcher.Constraint("Coincident", 0, 2, 1, 1))
sketch22.addConstraint(Sketcher.Constraint("Coincident", 1, 2, 2, 1))
sketch22.addConstraint(Sketcher.Constraint("Coincident", 2, 2, 3, 2))
sketch22.addConstraint(Sketcher.Constraint("Coincident", 3, 1, 4, 1))
sketch22.addConstraint(Sketcher.Constraint("Coincident", 4, 2, 5, 1))
sketch22.addConstraint(Sketcher.Constraint("Coincident", 5, 2, 6, 1))
sketch22.addConstraint(Sketcher.Constraint("Coincident", 6, 2, 7, 2))
sketch22.addConstraint(Sketcher.Constraint("Coincident", 7, 1, 8, 1))
sketch22.addConstraint(Sketcher.Constraint("Coincident", 8, 2, 9, 1))
sketch22.addConstraint(Sketcher.Constraint("Coincident", 9, 2, 10, 1))
sketch22.addConstraint(Sketcher.Constraint("Coincident", 10, 2, 11, 2))
sketch22.addConstraint(Sketcher.Constraint("Coincident", 11, 1, 12, 1))
sketch22.addConstraint(Sketcher.Constraint("Coincident", 12, 2, 13, 1))
sketch22.addConstraint(Sketcher.Constraint("Coincident", 13, 2, 14, 1))
sketch22.addConstraint(Sketcher.Constraint("Coincident", 14, 2, 15, 2))
sketch22.addConstraint(Sketcher.Constraint("Coincident", 15, 1, 16, 1))
sketch22.addConstraint(Sketcher.Constraint("Coincident", 16, 2, 17, 1))
sketch22.addConstraint(Sketcher.Constraint("Coincident", 17, 2, 0, 1))
sketch22.addConstraint(Sketcher.Constraint("Vertical", 0))
sketch22.addConstraint(Sketcher.Constraint("Vertical", 2))
sketch22.addConstraint(Sketcher.Constraint("Vertical", 4))
sketch22.addConstraint(Sketcher.Constraint("Vertical", 6))
sketch22.addConstraint(Sketcher.Constraint("Horizontal", 8))
sketch22.addConstraint(Sketcher.Constraint("Vertical", 9))
sketch22.addConstraint(Sketcher.Constraint("Horizontal", 10))
sketch22.addConstraint(Sketcher.Constraint("Vertical", 12))
sketch22.addConstraint(Sketcher.Constraint("Vertical", 14))
sketch22.addConstraint(Sketcher.Constraint("Vertical", 16))
sketch22.addConstraint(Sketcher.Constraint("Coincident", 5, 3, 1, 3))
sketch22.addConstraint(Sketcher.Constraint("Coincident", 7, 3, 1, 3))
sketch22.addConstraint(Sketcher.Constraint("Coincident", 11, 3, 1, 3))
sketch22.addConstraint(Sketcher.Constraint("Coincident", 13, 3, 1, 3))
sketch22.addConstraint(Sketcher.Constraint("Coincident", 17, 3, 1, 3))
sketch22.addConstraint(Sketcher.Constraint("Equal", 1, 5))
sketch22.addConstraint(Sketcher.Constraint("Equal", 7, 11))
sketch22.addConstraint(Sketcher.Constraint("Equal", 5, 13))
sketch22.addConstraint(Sketcher.Constraint("Equal", 3, 15))
sketch22.addConstraint(Sketcher.Constraint("Equal", 13, 17))
sketch22.addConstraint(Sketcher.Constraint("Symmetric", 3, 3, 15, 3, -1))
sketch22.addConstraint(Sketcher.Constraint("Symmetric", 7, 1, 10, 2, -1))
sketch22.addConstraint(Sketcher.Constraint("Horizontal", 2, 2, 3, 1))
sketch22.addConstraint(Sketcher.Constraint("Horizontal", 1, 2, 4, 2))
sketch22.addConstraint(Sketcher.Constraint("Horizontal", 14, 2, 15, 1))
sketch22.addConstraint(Sketcher.Constraint("Vertical", 6, 2, 11, 1))
sketch22.addConstraint(Sketcher.Constraint("Vertical", 4, 2, 13, 2))
sketch22.addConstraint(Sketcher.Constraint("Radius", 3, 3.0))
sketch22.addConstraint(Sketcher.Constraint("Radius", 1, 10.25))
sketch22.addConstraint(Sketcher.Constraint("Radius", 7, 15.25))
sketch22.addConstraint(Sketcher.Constraint("DistanceY", 9, 2, 9, 1, 18.8))
sketch22.addConstraint(Sketcher.Constraint("DistanceX", -1, 1, 0, 2, 18.0))
sketch22.addConstraint(Sketcher.Constraint("DistanceX", -1, 1, 1, 3, 9.5))
sketch22.addConstraint(Sketcher.Constraint("DistanceX", -1, 1, 1, 2, 11.1))
sketch22.addConstraint(Sketcher.Constraint("DistanceX", -1, 1, 5, 2, 2.3))
sketch22.addConstraint(Sketcher.Constraint("DistanceX", -1, 1, 8, 2, 32.3))
sketch22.addConstraint(Sketcher.Constraint("DistanceY", 2, 2, 2, 1, 0.862697))
pad15 = body.newObject("PartDesign::Pad", "Pad014")
pad15.Profile = sketch22
pad15.Length = 2.2
pad15.Reversed = True

sketch23 = body.newObject("Sketcher::SketchObject", "Sketch022")
sketch23.AttachmentSupport = (doc.getObject("XY_Plane"), [""])
sketch23.MapMode = "FlatFace"
sketch23.AttachmentOffset = App.Placement(V(0, 0, -19), App.Rotation())
add_polygon(sketch23, [(23.3, 9.4), (23.3, -9.4), (32.3, -9.4), (32.3, 9.4)])
sketch23.addConstraint(Sketcher.Constraint("Vertical", 0))
sketch23.addConstraint(Sketcher.Constraint("Horizontal", 1))
sketch23.addConstraint(Sketcher.Constraint("Vertical", 2))
sketch23.addConstraint(Sketcher.Constraint("Horizontal", 3))
sketch23.addConstraint(Sketcher.Constraint("DistanceX", 1, 1, 1, 2, 9.0))
sketch23.addConstraint(Sketcher.Constraint("DistanceY", 0, 2, 0, 1, 18.8))
sketch23.addConstraint(Sketcher.Constraint("DistanceX", -1, 1, 0, 2, 23.3))
sketch23.addConstraint(Sketcher.Constraint("DistanceY", 0, 2, -1, 1, 9.4))
pad16 = body.newObject("PartDesign::Pad", "Pad015")
pad16.Profile = sketch23
pad16.Length = 6

sketch24 = body.newObject("Sketcher::SketchObject", "Sketch023")
sketch24.AttachmentSupport = (doc.getObject("XY_Plane"), [""])
sketch24.MapMode = "FlatFace"
sketch24.AttachmentOffset = App.Placement(V(0, 0, -21.2), App.Rotation())
add_polygon(sketch24, [(32.3, 4.25), (32.3, -4.25), (23.3, -4.25), (23.3, 4.25)])
sketch24.addConstraint(Sketcher.Constraint("Vertical", 0))
sketch24.addConstraint(Sketcher.Constraint("Horizontal", 1))
sketch24.addConstraint(Sketcher.Constraint("Vertical", 2))
sketch24.addConstraint(Sketcher.Constraint("Horizontal", 3))
sketch24.addConstraint(Sketcher.Constraint("DistanceX", 1, 2, 1, 1, 9.0))
sketch24.addConstraint(Sketcher.Constraint("DistanceY", 0, 2, 0, 1, 8.5))
sketch24.addConstraint(Sketcher.Constraint("DistanceX", -1, 1, 0, 2, 32.3))
sketch24.addConstraint(Sketcher.Constraint("DistanceY", 0, 2, -1, 1, 4.25))
pad17 = body.newObject("PartDesign::Pad", "Pad016")
pad17.Profile = sketch24
pad17.Length = 6
pad17.Reversed = True

sketch25 = body.newObject("Sketcher::SketchObject", "Sketch024")
sketch25.AttachmentSupport = (doc.getObject("YZ_Plane"), [""])
sketch25.MapMode = "FlatFace"
sketch25.AttachmentOffset = App.Placement(V(0, 0, 32.3), App.Rotation())
add_polygon(sketch25, [(8.4, -14), (-8.4, -14), (-8.4, -18), (8.4, -18)])
add_polygon(sketch25, [(3.25, -22.2), (-3.25, -22.2), (-3.25, -26.2), (3.25, -26.2)])
sketch25.addConstraint(Sketcher.Constraint("Horizontal", 0))
sketch25.addConstraint(Sketcher.Constraint("Vertical", 1))
sketch25.addConstraint(Sketcher.Constraint("Horizontal", 2))
sketch25.addConstraint(Sketcher.Constraint("Vertical", 3))
sketch25.addConstraint(Sketcher.Constraint("Horizontal", 4))
sketch25.addConstraint(Sketcher.Constraint("Vertical", 5))
sketch25.addConstraint(Sketcher.Constraint("Horizontal", 6))
sketch25.addConstraint(Sketcher.Constraint("Vertical", 7))
sketch25.addConstraint(Sketcher.Constraint("Equal", 3, 5))
sketch25.addConstraint(Sketcher.Constraint("DistanceY", 1, 2, 1, 1, 4.0))
sketch25.addConstraint(Sketcher.Constraint("DistanceX", 0, 2, 0, 1, 16.8))
sketch25.addConstraint(Sketcher.Constraint("DistanceX", 4, 2, 4, 1, 6.5))
sketch25.addConstraint(Sketcher.Constraint("DistanceY", 0, 2, -1, 1, 14.0))
sketch25.addConstraint(Sketcher.Constraint("DistanceX", 0, 2, -1, 1, 8.4))
sketch25.addConstraint(Sketcher.Constraint("DistanceY", 4, 2, -1, 1, 22.2))
sketch25.addConstraint(Sketcher.Constraint("DistanceX", 4, 2, -1, 1, 3.25))
pocket6 = body.newObject("PartDesign::Pocket", "Pocket005")
pocket6.Profile = sketch25
pocket6.Length = 6

sketch26 = body.newObject("Sketcher::SketchObject", "Sketch025")
sketch26.AttachmentSupport = (doc.getObject("XY_Plane"), [""])
sketch26.MapMode = "FlatFace"
sketch26.AttachmentOffset = App.Placement(V(0, 0, -21.2), App.Rotation())
sketch26.addGeometry(Part.LineSegment(V(9.5, 11.25, 0), V(9.5, 13.25, 0)), False)
sketch26.addGeometry(Part.ArcOfCircle(Part.Circle(V(9.5, 0, 0), V(0, 0, 1), 13.25), math.radians(71.129323), math.radians(90)), False)
sketch26.addGeometry(Part.LineSegment(V(13.78549, 12.537826, 0), V(13.138623, 10.645324, 0)), False)
sketch26.addGeometry(Part.ArcOfCircle(Part.Circle(V(9.5, 0, 0), V(0, 0, 1), 11.25), math.radians(71.129323), math.radians(90)), False)
sketch26.addGeometry(Part.LineSegment(V(4.188525, 9.917194, 0), V(3.244262, 11.68025, 0)), False)
sketch26.addGeometry(Part.ArcOfCircle(Part.Circle(V(9.5, 0, 0), V(0, 0, 1), 13.25), math.radians(99.302046), math.radians(118.172723)), False)
sketch26.addGeometry(Part.LineSegment(V(7.358283, 13.075762, 0), V(7.681561, 11.102062, 0)), False)
sketch26.addGeometry(Part.ArcOfCircle(Part.Circle(V(9.5, 0, 0), V(0, 0, 1), 11.25), math.radians(99.302046), math.radians(118.172723)), False)
sketch26.addGeometry(Part.LineSegment(V(9.5, -13.25, 0), V(9.5, -11.25, 0)), False)
sketch26.addGeometry(Part.ArcOfCircle(Part.Circle(V(9.5, 0, 0), V(0, 0, 1), 11.25), math.radians(-90), math.radians(-71.129323)), False)
sketch26.addGeometry(Part.LineSegment(V(13.138623, -10.645324, 0), V(13.78549, -12.537826, 0)), False)
sketch26.addGeometry(Part.ArcOfCircle(Part.Circle(V(9.5, 0, 0), V(0, 0, 1), 13.25), math.radians(-90), math.radians(-71.129323)), False)
sketch26.addGeometry(Part.ArcOfCircle(Part.Circle(V(9.5, 0, 0), V(0, 0, 1), 13.25), math.radians(-118.172723), math.radians(-99.302046)), False)
sketch26.addGeometry(Part.LineSegment(V(3.244262, -11.68025, 0), V(4.188525, -9.917194, 0)), False)
sketch26.addGeometry(Part.ArcOfCircle(Part.Circle(V(9.5, 0, 0), V(0, 0, 1), 11.25), math.radians(-118.172723), math.radians(-99.302046)), False)
sketch26.addGeometry(Part.LineSegment(V(7.681561, -11.102062, 0), V(7.358283, -13.075762, 0)), False)
sketch26.addConstraint(Sketcher.Constraint("Coincident", 0, 2, 1, 2))
sketch26.addConstraint(Sketcher.Constraint("Coincident", 1, 1, 2, 1))
sketch26.addConstraint(Sketcher.Constraint("Coincident", 2, 2, 3, 1))
sketch26.addConstraint(Sketcher.Constraint("Coincident", 3, 2, 0, 1))
sketch26.addConstraint(Sketcher.Constraint("Coincident", 4, 2, 5, 2))
sketch26.addConstraint(Sketcher.Constraint("Coincident", 5, 1, 6, 1))
sketch26.addConstraint(Sketcher.Constraint("Coincident", 6, 2, 7, 1))
sketch26.addConstraint(Sketcher.Constraint("Coincident", 7, 2, 4, 1))
sketch26.addConstraint(Sketcher.Constraint("Coincident", 8, 2, 9, 1))
sketch26.addConstraint(Sketcher.Constraint("Coincident", 9, 2, 10, 1))
sketch26.addConstraint(Sketcher.Constraint("Coincident", 10, 2, 11, 2))
sketch26.addConstraint(Sketcher.Constraint("Coincident", 11, 1, 8, 1))
sketch26.addConstraint(Sketcher.Constraint("Coincident", 12, 1, 13, 1))
sketch26.addConstraint(Sketcher.Constraint("Coincident", 13, 2, 14, 1))
sketch26.addConstraint(Sketcher.Constraint("Coincident", 14, 2, 15, 1))
sketch26.addConstraint(Sketcher.Constraint("Coincident", 15, 2, 12, 2))
sketch26.addConstraint(Sketcher.Constraint("Vertical", 0))
sketch26.addConstraint(Sketcher.Constraint("Vertical", 8))
sketch26.addConstraint(Sketcher.Constraint("Coincident", 3, 3, 1, 3))
sketch26.addConstraint(Sketcher.Constraint("Coincident", 5, 3, 1, 3))
sketch26.addConstraint(Sketcher.Constraint("Coincident", 7, 3, 1, 3))
sketch26.addConstraint(Sketcher.Constraint("Coincident", 9, 3, 1, 3))
sketch26.addConstraint(Sketcher.Constraint("Coincident", 11, 3, 1, 3))
sketch26.addConstraint(Sketcher.Constraint("Coincident", 12, 3, 1, 3))
sketch26.addConstraint(Sketcher.Constraint("Coincident", 14, 3, 1, 3))
sketch26.addConstraint(Sketcher.Constraint("Equal", 1, 5))
sketch26.addConstraint(Sketcher.Constraint("Equal", 3, 7))
sketch26.addConstraint(Sketcher.Constraint("Equal", 7, 9))
sketch26.addConstraint(Sketcher.Constraint("Equal", 5, 11))
sketch26.addConstraint(Sketcher.Constraint("Equal", 11, 12))
sketch26.addConstraint(Sketcher.Constraint("Equal", 9, 14))
sketch26.addConstraint(Sketcher.Constraint("Symmetric", 3, 2, 8, 2, -1))
sketch26.addConstraint(Sketcher.Constraint("Vertical", 14, 3, 0, 2))
sketch26.addConstraint(Sketcher.Constraint("Vertical", 2, 2, 9, 2))
sketch26.addConstraint(Sketcher.Constraint("Vertical", 1, 1, 10, 2))
sketch26.addConstraint(Sketcher.Constraint("Vertical", 4, 2, 12, 1))
sketch26.addConstraint(Sketcher.Constraint("Vertical", 7, 2, 13, 2))
sketch26.addConstraint(Sketcher.Constraint("Vertical", 6, 2, 14, 2))
sketch26.addConstraint(Sketcher.Constraint("Vertical", 5, 1, 15, 2))
sketch26.addConstraint(Sketcher.Constraint("DistanceY", 0, 1, 0, 2, 2.0))
sketch26.addConstraint(Sketcher.Constraint("Radius", 1, 13.25))
sketch26.addConstraint(Sketcher.Constraint("DistanceX", -1, 1, 1, 3, 9.5))
sketch26.addConstraint(Sketcher.Constraint("DistanceY", 6, 2, 5, 1, 1.9737))
sketch26.addConstraint(Sketcher.Constraint("DistanceX", 4, 2, 6, 2, 4.437298))
sketch26.addConstraint(Sketcher.Constraint("DistanceX", 13, 2, 9, 2, 8.950099))
sketch26.addConstraint(Sketcher.Constraint("DistanceX", -1, 1, 1, 1, 13.78549))
sketch26.addConstraint(Sketcher.Constraint("DistanceY", -1, 1, 4, 2, 11.68025))
sketch26.addConstraint(Sketcher.Constraint("DistanceX", 4, 2, 2, 2, 9.894361))
pad18 = body.newObject("PartDesign::Pad", "Pad017")
pad18.Profile = sketch26
pad18.Length = 10
pad18.Reversed = True

sketch27 = body.newObject("Sketcher::SketchObject", "Sketch026")
sketch27.AttachmentSupport = (doc.getObject("YZ_Plane"), [""])
sketch27.MapMode = "FlatFace"
sketch27.AttachmentOffset = App.Placement(V(0, 0, 19), App.Rotation())
sketch27.addGeometry(Part.Circle(V(0, 25, 0), V(0, 0, 1), 7.497187), False)
sketch27.addConstraint(Sketcher.Constraint("PointOnObject", 0, 3, -2))
sketch27.addConstraint(Sketcher.Constraint("DistanceY", -1, 1, 0, 3, 25.0))
sketch27.addConstraint(Sketcher.Constraint("Diameter", 0, 14.994374))
pocket7 = body.newObject("PartDesign::Pocket", "Pocket006")
pocket7.Profile = sketch27
pocket7.Length = 33
pocket7.Reversed = True

doc.recompute()
